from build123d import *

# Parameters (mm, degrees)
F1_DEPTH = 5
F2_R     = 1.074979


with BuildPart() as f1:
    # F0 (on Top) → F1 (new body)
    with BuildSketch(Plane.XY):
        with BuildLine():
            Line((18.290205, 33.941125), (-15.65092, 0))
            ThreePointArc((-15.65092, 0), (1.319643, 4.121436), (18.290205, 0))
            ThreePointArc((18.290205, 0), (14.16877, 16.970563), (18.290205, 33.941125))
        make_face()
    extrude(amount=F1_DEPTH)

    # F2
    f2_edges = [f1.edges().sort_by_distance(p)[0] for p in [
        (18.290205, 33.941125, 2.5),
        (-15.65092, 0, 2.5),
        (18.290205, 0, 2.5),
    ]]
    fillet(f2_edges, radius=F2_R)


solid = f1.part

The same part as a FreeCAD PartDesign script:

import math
import FreeCAD as App
import Part
import Sketcher

V = App.Vector
Q = App.Units.Quantity


def edges_at(feature, points):
    """Names of the edges that pass closest to the given points."""
    edges = feature.Shape.Edges
    near = lambda p: min(range(len(edges)), key=lambda i: edges[i].distToShape(Part.Vertex(*p))[0])
    return sorted({f"Edge{near(p) + 1}" for p in points})

doc = App.newDocument("Part")
body = doc.addObject("PartDesign::Body", "Body")

sketch1 = doc.addObject("Sketcher::SketchObject", "Sketch")
body.addObject(sketch1)
sketch1.AttachmentSupport = (doc.XY_Plane, [""])
sketch1.MapMode = "FlatFace"
sketch1.addGeometry([
    Part.LineSegment(V(18, 34, 0), V(-16, 0, 0)),
    Part.ArcOfCircle(Part.Circle(V(1, -33, 0), V(0, 0, 1), 37), math.radians(63), math.radians(117)),
    Part.ArcOfCircle(Part.Circle(V(51, 17, 0), V(0, 0, 1), 37), math.radians(153), math.radians(207)),
], False)
sketch1.addConstraint([
    Sketcher.Constraint("Coincident", 0, 2, 1, 2),
    Sketcher.Constraint("Coincident", 1, 1, 2, 2),
    Sketcher.Constraint("Coincident", 2, 1, 0, 1),
    Sketcher.Constraint("PointOnObject", 0, 2, -1),
    Sketcher.Constraint("PointOnObject", 1, 1, -1),
    Sketcher.Constraint("Vertical", 1, 1, 2, 1),
    Sketcher.Constraint("Angle", 0, Q("-135 deg")),
    Sketcher.Constraint("Distance", 0, Q("47.999999 mm")),
    Sketcher.Constraint("Radius", 1, Q("36.999995 mm")),
    Sketcher.Constraint("Radius", 2, Q("37.000003 mm")),
    Sketcher.Constraint("DistanceX", 0, 2, -1, 1, Q("15.65092 mm")),
])
pad1 = doc.addObject("PartDesign::Pad", "Pad")
body.addObject(pad1)
pad1.Profile = sketch1
pad1.Length = 5
doc.recompute()

fillet = doc.addObject("PartDesign::Fillet", "Fillet")
body.addObject(fillet)
fillet.Base = (pad1, edges_at(pad1, [(18.29, 33.941, 2.5), (-15.651, 0, 2.5), (18.29, 0, 2.5)]))
fillet.Radius = 1.074979

doc.recompute()
